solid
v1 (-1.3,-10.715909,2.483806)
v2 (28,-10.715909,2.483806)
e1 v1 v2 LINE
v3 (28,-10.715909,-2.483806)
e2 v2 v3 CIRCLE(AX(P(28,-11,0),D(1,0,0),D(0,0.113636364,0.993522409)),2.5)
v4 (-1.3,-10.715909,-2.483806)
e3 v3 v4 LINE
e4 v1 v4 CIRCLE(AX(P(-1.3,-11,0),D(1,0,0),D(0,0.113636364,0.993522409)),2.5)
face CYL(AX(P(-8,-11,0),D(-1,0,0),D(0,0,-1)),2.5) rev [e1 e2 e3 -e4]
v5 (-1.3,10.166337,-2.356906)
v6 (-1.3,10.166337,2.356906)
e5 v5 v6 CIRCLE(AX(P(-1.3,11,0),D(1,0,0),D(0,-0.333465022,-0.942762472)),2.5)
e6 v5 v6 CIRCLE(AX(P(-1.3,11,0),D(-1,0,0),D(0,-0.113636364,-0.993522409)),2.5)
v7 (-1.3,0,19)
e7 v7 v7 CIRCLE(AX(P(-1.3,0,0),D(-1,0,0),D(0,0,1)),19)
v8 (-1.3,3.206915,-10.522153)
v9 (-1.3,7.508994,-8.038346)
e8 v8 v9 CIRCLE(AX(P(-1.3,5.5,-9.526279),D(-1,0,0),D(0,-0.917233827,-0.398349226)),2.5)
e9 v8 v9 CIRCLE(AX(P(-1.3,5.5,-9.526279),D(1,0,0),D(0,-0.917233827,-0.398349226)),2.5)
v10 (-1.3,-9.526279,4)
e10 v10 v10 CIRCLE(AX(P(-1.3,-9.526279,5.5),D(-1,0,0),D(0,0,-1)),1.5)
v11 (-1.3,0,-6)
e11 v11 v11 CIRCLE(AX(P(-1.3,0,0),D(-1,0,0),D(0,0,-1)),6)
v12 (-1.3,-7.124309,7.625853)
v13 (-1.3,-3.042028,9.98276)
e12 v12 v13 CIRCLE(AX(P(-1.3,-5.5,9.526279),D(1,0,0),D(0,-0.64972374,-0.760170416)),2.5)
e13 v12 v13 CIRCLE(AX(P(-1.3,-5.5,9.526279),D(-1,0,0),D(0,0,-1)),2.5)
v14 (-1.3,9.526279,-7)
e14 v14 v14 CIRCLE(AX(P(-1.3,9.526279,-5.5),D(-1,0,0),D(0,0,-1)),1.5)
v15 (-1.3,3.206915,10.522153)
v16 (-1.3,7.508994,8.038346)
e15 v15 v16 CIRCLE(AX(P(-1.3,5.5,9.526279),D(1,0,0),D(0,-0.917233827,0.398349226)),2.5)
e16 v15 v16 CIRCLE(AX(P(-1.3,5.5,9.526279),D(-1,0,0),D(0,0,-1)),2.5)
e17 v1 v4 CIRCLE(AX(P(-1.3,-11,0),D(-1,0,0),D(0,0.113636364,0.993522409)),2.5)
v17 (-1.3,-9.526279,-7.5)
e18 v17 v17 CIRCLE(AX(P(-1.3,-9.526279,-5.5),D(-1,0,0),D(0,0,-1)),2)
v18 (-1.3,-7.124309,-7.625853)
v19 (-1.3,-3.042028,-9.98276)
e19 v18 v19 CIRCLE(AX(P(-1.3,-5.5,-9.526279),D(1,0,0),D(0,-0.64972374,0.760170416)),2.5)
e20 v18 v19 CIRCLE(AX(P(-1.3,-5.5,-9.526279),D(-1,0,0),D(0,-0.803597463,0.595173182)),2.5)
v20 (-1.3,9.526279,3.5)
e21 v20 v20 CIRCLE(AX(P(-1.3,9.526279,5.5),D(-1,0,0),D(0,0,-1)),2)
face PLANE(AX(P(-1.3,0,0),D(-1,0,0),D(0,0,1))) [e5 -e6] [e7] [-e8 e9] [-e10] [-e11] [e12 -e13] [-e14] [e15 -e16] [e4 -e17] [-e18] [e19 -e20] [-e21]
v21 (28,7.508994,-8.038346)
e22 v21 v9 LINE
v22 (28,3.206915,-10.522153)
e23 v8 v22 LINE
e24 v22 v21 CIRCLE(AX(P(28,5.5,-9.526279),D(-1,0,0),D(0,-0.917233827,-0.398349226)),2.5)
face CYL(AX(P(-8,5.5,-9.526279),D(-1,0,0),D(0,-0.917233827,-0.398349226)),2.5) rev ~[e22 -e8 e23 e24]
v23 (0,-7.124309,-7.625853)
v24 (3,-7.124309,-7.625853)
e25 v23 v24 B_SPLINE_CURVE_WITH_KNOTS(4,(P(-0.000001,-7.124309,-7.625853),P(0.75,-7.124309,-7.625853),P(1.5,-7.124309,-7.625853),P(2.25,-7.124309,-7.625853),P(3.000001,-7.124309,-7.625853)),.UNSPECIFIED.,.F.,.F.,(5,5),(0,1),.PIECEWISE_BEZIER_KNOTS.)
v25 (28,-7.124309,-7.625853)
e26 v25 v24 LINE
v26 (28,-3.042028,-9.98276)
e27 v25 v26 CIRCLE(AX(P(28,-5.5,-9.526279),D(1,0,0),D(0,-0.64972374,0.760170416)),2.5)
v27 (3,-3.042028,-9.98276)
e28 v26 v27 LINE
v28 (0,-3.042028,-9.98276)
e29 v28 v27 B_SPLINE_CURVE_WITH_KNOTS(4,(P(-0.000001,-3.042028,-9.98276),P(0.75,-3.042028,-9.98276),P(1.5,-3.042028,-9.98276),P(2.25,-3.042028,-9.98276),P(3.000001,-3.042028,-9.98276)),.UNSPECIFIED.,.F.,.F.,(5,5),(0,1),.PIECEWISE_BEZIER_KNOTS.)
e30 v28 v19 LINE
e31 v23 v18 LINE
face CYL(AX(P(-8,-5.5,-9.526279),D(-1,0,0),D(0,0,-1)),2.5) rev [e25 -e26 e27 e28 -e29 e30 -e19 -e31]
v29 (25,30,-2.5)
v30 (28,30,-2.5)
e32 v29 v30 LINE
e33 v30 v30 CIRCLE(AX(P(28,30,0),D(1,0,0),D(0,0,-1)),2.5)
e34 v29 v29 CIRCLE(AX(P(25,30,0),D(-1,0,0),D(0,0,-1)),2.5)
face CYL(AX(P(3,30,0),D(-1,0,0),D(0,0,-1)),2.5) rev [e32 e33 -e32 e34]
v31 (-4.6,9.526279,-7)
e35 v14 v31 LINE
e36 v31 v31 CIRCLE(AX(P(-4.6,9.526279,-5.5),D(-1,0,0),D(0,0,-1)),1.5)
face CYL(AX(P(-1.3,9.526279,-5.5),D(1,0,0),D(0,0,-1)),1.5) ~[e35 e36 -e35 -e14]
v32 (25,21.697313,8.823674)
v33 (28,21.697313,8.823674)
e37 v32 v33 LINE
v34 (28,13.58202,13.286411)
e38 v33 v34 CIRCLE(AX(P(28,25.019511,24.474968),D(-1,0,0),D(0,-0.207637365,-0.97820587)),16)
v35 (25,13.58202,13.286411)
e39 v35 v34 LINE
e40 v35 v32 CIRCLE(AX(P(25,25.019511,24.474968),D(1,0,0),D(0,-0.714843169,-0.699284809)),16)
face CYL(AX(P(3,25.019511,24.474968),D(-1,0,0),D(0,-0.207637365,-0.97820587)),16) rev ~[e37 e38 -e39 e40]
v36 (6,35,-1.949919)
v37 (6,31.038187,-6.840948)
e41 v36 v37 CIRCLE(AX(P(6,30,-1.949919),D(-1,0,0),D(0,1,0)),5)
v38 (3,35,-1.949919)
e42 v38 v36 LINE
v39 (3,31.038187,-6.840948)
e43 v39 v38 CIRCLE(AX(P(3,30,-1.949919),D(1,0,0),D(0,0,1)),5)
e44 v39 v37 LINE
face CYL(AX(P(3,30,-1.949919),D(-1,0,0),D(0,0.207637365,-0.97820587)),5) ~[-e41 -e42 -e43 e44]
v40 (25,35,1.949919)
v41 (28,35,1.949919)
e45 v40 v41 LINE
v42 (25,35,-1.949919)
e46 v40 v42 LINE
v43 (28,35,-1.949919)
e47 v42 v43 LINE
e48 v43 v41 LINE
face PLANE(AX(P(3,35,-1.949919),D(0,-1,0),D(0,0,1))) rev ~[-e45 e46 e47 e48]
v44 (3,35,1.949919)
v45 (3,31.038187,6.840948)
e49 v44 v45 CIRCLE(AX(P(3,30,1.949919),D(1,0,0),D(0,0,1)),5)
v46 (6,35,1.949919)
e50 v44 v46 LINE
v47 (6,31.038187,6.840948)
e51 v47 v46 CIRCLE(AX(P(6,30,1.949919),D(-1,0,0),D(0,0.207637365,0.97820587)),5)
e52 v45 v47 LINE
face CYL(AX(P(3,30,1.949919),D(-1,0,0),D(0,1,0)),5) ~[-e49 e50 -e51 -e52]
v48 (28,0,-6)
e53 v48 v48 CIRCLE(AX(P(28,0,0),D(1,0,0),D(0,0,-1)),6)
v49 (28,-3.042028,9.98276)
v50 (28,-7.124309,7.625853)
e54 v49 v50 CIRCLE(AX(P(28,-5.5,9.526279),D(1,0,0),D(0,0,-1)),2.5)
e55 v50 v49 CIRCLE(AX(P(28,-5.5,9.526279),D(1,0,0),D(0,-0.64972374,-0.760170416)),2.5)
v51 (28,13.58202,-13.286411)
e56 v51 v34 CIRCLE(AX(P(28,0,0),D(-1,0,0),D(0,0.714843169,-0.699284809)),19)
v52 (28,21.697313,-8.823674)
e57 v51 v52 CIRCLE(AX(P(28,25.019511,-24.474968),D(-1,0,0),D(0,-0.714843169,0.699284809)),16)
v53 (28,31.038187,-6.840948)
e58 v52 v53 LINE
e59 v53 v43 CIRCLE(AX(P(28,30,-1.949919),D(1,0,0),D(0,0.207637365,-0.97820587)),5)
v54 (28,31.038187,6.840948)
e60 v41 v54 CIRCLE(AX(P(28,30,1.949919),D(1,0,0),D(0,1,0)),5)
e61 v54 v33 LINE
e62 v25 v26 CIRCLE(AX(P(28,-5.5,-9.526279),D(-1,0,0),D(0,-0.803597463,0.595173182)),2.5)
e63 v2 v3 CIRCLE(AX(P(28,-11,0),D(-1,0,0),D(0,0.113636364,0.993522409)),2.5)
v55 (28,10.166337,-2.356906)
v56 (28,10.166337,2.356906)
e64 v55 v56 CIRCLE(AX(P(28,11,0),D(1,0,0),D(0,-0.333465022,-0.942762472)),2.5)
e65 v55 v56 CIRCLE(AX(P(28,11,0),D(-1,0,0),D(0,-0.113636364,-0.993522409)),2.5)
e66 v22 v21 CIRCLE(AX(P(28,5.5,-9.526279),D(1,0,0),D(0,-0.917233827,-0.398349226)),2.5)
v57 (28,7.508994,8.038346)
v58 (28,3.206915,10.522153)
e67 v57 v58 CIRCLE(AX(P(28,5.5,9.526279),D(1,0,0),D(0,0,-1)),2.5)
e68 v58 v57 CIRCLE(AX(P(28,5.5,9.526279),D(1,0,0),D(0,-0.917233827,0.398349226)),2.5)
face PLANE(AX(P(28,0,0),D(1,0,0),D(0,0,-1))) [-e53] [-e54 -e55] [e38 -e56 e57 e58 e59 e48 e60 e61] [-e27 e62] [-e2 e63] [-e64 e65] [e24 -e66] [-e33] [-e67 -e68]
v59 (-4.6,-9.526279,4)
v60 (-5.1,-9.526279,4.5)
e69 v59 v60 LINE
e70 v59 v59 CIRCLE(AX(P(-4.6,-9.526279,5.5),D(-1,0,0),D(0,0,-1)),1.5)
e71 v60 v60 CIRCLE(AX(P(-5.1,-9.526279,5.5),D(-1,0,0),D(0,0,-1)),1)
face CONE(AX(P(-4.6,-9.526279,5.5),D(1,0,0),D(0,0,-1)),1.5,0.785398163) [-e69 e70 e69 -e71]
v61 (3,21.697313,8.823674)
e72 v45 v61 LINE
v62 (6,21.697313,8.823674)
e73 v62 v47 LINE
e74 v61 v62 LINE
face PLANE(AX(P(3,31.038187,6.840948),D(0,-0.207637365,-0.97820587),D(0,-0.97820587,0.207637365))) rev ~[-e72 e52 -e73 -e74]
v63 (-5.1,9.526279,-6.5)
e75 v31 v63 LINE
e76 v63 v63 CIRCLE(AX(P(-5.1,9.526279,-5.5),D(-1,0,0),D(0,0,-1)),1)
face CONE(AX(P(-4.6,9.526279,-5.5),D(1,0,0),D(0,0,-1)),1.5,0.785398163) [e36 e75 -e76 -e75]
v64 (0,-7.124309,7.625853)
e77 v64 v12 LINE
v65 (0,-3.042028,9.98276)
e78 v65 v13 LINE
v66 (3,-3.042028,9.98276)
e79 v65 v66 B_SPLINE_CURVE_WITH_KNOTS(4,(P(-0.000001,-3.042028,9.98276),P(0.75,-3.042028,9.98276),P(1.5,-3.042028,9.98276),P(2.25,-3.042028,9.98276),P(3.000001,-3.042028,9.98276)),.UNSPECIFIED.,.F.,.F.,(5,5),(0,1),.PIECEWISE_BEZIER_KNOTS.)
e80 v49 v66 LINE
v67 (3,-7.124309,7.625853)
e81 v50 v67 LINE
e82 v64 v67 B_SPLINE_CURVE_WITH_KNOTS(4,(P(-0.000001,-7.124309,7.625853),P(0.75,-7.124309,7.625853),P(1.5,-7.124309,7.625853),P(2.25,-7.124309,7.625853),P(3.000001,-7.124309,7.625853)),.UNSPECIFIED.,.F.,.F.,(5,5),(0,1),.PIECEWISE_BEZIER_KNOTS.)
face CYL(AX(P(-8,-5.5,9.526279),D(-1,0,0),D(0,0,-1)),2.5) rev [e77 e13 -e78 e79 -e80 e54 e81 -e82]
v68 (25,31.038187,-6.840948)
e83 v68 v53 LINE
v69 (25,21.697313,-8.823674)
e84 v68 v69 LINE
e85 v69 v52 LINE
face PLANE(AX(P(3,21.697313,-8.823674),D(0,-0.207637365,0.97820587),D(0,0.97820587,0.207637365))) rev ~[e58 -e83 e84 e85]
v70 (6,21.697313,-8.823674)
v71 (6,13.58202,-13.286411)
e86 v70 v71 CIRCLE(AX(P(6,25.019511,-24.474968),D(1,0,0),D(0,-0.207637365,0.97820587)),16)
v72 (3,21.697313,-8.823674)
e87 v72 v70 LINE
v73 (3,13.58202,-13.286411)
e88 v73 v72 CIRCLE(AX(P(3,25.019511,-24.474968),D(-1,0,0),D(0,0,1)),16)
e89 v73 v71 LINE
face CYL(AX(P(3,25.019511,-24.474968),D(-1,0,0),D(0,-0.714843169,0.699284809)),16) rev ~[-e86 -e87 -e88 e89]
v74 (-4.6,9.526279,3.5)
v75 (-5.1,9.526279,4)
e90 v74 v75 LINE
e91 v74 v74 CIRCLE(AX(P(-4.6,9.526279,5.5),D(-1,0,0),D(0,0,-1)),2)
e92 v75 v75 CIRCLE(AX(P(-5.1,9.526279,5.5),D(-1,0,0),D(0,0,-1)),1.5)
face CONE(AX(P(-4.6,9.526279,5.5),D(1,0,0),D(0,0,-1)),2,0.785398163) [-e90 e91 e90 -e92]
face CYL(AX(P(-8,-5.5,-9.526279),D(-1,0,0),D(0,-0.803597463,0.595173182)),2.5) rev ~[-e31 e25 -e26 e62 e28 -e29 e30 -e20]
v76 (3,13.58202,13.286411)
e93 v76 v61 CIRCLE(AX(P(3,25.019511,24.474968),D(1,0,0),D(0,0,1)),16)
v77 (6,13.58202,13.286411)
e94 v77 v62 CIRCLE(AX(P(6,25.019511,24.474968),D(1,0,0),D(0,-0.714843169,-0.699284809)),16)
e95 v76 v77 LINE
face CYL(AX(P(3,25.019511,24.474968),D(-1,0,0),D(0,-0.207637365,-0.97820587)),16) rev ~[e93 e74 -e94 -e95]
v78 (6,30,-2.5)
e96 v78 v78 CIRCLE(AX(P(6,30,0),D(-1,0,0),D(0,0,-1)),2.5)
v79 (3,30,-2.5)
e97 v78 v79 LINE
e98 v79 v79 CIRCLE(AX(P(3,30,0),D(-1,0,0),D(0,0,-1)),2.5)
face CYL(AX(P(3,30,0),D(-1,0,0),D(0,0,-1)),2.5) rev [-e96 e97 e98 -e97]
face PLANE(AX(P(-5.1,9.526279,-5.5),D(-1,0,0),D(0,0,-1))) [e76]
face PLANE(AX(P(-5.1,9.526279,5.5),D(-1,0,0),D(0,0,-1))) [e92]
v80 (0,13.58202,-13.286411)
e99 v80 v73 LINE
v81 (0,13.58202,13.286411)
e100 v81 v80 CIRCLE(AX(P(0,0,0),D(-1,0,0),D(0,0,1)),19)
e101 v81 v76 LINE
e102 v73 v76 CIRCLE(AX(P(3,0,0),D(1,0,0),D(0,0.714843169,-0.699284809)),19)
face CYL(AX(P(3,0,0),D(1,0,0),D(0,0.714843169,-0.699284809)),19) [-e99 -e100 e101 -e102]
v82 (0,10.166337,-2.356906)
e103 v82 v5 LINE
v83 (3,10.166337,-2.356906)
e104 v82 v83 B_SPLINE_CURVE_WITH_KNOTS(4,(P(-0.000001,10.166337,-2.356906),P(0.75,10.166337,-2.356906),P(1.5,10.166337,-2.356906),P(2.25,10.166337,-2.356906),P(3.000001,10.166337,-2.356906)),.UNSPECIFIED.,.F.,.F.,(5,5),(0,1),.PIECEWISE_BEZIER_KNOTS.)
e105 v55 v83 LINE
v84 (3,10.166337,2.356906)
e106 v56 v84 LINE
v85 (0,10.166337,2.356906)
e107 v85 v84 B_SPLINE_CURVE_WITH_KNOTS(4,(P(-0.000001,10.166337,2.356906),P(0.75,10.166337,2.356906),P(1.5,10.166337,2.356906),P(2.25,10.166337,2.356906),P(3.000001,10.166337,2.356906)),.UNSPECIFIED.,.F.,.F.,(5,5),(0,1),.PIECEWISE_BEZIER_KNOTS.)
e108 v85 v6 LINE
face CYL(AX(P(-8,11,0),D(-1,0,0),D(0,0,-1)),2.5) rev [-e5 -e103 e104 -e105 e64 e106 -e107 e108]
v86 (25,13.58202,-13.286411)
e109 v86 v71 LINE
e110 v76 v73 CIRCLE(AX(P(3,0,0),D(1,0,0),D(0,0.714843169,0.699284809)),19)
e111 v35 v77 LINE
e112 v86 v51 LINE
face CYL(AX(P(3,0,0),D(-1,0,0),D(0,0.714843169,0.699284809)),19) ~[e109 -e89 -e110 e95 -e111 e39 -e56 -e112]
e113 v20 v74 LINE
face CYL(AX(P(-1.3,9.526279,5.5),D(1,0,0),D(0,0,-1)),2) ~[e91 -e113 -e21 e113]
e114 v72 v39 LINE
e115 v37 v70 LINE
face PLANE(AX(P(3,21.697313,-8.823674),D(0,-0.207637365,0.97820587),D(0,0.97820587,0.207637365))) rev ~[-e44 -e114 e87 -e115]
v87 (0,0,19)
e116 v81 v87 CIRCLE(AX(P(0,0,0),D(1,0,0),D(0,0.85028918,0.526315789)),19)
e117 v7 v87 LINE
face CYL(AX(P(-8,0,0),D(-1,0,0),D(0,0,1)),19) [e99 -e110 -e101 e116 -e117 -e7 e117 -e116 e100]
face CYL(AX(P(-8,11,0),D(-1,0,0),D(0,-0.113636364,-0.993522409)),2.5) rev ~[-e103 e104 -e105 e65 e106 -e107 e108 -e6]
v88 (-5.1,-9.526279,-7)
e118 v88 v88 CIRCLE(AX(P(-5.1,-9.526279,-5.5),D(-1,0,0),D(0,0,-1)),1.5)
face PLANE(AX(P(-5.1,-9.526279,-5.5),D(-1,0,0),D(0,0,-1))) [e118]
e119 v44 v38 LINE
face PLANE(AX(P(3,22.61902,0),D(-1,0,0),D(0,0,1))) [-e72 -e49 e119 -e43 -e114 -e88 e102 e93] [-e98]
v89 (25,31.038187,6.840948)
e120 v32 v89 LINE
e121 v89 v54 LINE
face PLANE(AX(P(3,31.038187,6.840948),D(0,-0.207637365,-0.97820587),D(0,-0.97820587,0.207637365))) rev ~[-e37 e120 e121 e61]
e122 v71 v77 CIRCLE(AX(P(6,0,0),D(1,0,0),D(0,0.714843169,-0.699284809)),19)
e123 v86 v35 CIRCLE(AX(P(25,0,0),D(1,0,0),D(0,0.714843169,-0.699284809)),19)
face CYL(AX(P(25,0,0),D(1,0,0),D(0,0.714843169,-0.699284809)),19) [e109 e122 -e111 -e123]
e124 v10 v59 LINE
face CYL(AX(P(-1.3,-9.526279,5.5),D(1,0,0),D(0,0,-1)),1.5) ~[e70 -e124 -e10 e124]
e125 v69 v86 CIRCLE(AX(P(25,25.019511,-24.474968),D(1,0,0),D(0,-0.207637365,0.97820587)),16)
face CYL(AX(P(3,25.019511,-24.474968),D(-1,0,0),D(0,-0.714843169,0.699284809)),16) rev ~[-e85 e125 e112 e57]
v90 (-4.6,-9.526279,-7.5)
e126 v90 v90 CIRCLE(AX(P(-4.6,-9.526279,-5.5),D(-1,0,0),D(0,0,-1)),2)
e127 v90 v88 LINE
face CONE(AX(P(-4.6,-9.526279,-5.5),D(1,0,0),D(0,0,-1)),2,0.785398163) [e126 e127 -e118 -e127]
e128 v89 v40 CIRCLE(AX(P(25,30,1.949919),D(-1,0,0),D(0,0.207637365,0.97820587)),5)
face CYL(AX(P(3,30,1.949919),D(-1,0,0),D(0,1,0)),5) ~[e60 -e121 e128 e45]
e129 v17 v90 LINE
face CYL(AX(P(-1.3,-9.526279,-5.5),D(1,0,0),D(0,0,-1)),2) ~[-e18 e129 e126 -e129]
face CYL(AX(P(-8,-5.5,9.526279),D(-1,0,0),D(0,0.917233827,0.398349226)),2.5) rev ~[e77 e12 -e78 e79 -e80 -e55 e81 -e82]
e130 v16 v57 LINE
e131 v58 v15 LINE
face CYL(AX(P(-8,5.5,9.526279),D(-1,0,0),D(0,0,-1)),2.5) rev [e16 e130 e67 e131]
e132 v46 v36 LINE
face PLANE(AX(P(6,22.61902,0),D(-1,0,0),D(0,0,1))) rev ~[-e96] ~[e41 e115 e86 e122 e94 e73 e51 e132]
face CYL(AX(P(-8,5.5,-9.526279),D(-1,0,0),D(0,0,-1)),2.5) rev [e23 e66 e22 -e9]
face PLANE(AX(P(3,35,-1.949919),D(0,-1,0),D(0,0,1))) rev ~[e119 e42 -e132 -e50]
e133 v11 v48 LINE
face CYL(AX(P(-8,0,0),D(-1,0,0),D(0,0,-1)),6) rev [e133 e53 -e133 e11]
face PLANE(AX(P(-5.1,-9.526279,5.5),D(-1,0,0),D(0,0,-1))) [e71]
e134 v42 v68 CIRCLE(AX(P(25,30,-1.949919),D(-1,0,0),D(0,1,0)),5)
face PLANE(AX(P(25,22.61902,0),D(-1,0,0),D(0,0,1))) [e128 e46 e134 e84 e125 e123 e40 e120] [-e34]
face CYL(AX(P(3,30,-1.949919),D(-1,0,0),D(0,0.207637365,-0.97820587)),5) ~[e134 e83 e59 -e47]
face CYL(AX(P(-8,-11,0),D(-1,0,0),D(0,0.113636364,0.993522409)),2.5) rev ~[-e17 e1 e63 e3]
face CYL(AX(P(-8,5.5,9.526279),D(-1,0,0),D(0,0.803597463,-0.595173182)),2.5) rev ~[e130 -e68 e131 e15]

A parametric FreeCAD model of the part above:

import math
import FreeCAD as App
import Part
import Sketcher
Q = App.Units.Quantity


def edges_at(feature, points):
    """Names of the edges that pass closest to the given points."""
    edges = feature.Shape.Edges
    near = lambda p: min(range(len(edges)), key=lambda i: edges[i].distToShape(Part.Vertex(*p))[0])
    return sorted({f"Edge{near(p) + 1}" for p in points})

doc = App.newDocument("Part")
body = doc.addObject("PartDesign::Body", "Body")

sketch1 = body.newObject("Sketcher::SketchObject", "Sketch")
sketch1.AttachmentSupport = (doc.getObject("YZ_Plane"), [""])
sketch1.MapMode = "FlatFace"
sketch1.addGeometry([
    Part.Circle(App.Vector(0, 0, 0), App.Vector(0, 0, 1), 19),
    Part.Circle(App.Vector(-6.75, 11.691343, 0), App.Vector(0, 0, 1), 2),
    Part.Circle(App.Vector(-15, 0, 0), App.Vector(0, 0, 1), 2),
    Part.Circle(App.Vector(-6.75, -11.691343, 0), App.Vector(0, 0, 1), 2),
    Part.Circle(App.Vector(7.5, 12.990381, 0), App.Vector(0, 0, 1), 2),
    Part.Circle(App.Vector(0, 0, 0), App.Vector(0, 0, 1), 11),
    Part.Circle(App.Vector(13.5, 0, 0), App.Vector(0, 0, 1), 2),
    Part.Circle(App.Vector(7.5, -12.990381, 0), App.Vector(0, 0, 1), 2),
], False)
sketch1.addConstraint([
    Sketcher.Constraint("Coincident", 0, 3, -1, 1),
    Sketcher.Constraint("Coincident", 5, 3, -1, 1),
    Sketcher.Constraint("Equal", 1, 2),
    Sketcher.Constraint("Equal", 2, 3),
    Sketcher.Constraint("Equal", 3, 4),
    Sketcher.Constraint("Equal", 4, 6),
    Sketcher.Constraint("Equal", 6, 7),
    Sketcher.Constraint("Symmetric", 1, 3, 3, 3, -1),
    Sketcher.Constraint("Symmetric", 4, 3, 7, 3, -1),
    Sketcher.Constraint("PointOnObject", 2, 3, -1),
    Sketcher.Constraint("PointOnObject", 6, 3, -1),
    Sketcher.Constraint("Diameter", 0, Q("38 mm")),
    Sketcher.Constraint("Diameter", 1, Q("4 mm")),
    Sketcher.Constraint("Diameter", 5, Q("22 mm")),
    Sketcher.Constraint("DistanceX", 2, 3, -1, 1, Q("15 mm")),
    Sketcher.Constraint("DistanceX", 4, 3, 6, 3, Q("6 mm")),
    Sketcher.Constraint("DistanceX", -1, 1, 4, 3, Q("7.5 mm")),
    Sketcher.Constraint("DistanceX", 1, 3, -1, 1, Q("6.75 mm")),
    Sketcher.Constraint("DistanceY", -1, 1, 4, 3, Q("12.990381 mm")),
    Sketcher.Constraint("DistanceY", 1, 3, 4, 3, Q("1.299038 mm")),
])
pad1 = body.newObject("PartDesign::Pad", "Pad")
pad1.Profile = sketch1
pad1.Length = 3

sketch2 = body.newObject("Sketcher::SketchObject", "Sketch001")
sketch2.AttachmentSupport = (doc.getObject("YZ_Plane"), [""])
sketch2.MapMode = "FlatFace"
sketch2.addGeometry([
    Part.ArcOfCircle(Part.Circle(App.Vector(13.5, 0, 0), App.Vector(0, 0, 1), 4), math.radians(135.665969), math.radians(224.334031)),
    Part.ArcOfCircle(Part.Circle(App.Vector(0, 0, 0), App.Vector(0, 0, 1), 11), math.radians(-14.721668), math.radians(14.721668)),
    Part.ArcOfCircle(Part.Circle(App.Vector(-6.75, -11.691343, 0), App.Vector(0, 0, 1), 4), math.radians(15.665969), math.radians(104.334031)),
    Part.ArcOfCircle(Part.Circle(App.Vector(0, 0, 0), App.Vector(0, 0, 1), 11), math.radians(-134.721668), math.radians(-105.278332)),
    Part.ArcOfCircle(Part.Circle(App.Vector(-6.75, 11.691343, 0), App.Vector(0, 0, 1), 4), math.radians(-104.334031), math.radians(-15.665969)),
    Part.ArcOfCircle(Part.Circle(App.Vector(0, 0, 0), App.Vector(0, 0, 1), 11), math.radians(105.278332), math.radians(134.721668)),
], False)
sketch2.addConstraint([
    Sketcher.Constraint("Coincident", 0, 1, 1, 2),
    Sketcher.Constraint("Coincident", 1, 1, 0, 2),
    Sketcher.Constraint("Coincident", 2, 1, 3, 2),
    Sketcher.Constraint("Coincident", 3, 1, 2, 2),
    Sketcher.Constraint("Coincident", 4, 1, 5, 2),
    Sketcher.Constraint("Coincident", 5, 1, 4, 2),
    Sketcher.Constraint("Coincident", 1, 3, -1, 1),
    Sketcher.Constraint("Coincident", 3, 3, -1, 1),
    Sketcher.Constraint("Coincident", 5, 3, -1, 1),
    Sketcher.Constraint("Equal", 0, 2),
    Sketcher.Constraint("Equal", 1, 3),
    Sketcher.Constraint("Equal", 2, 4),
    Sketcher.Constraint("Equal", 3, 5),
    Sketcher.Constraint("Symmetric", 2, 3, 4, 3, -1),
    Sketcher.Constraint("PointOnObject", 0, 3, -1),
    Sketcher.Constraint("Radius", 0, Q("4 mm")),
    Sketcher.Constraint("Radius", 1, Q("11 mm")),
    Sketcher.Constraint("DistanceX", -1, 1, 0, 3, Q("13.5 mm")),
    Sketcher.Constraint("DistanceX", 2, 3, -1, 1, Q("6.75 mm")),
    Sketcher.Constraint("DistanceX", 3, 1, -1, 1, Q("7.740298 mm")),
])
pad2 = body.newObject("PartDesign::Pad", "Pad001")
pad2.Profile = sketch2
pad2.Length = 3
doc.recompute()

fillet = body.newObject("PartDesign::Fillet", "Fillet")
fillet.Base = (pad2, edges_at(pad2, [
    (1.5, 10.639, 2.795),
    (1.5, 10.639, -2.795),
    (1.5, -2.899, -10.611),
    (1.5, -7.74, -7.816),
    (1.5, -7.74, 7.816),
    (1.5, -2.899, 10.611),
]))
fillet.Radius = 3

sketch3 = body.newObject("Sketcher::SketchObject", "Sketch002")
sketch3.AttachmentSupport = (doc.getObject("YZ_Plane"), [""])
sketch3.MapMode = "FlatFace"
sketch3.addGeometry([
    Part.LineSegment(App.Vector(35, 6, 0), App.Vector(16.155494, 10, 0)),
    Part.ArcOfCircle(Part.Circle(App.Vector(0, 0, 0), App.Vector(0, 0, 1), 19), math.radians(-31.756864), math.radians(31.756864)),
    Part.LineSegment(App.Vector(16.155494, -10, 0), App.Vector(35, -6, 0)),
    Part.LineSegment(App.Vector(35, -6, 0), App.Vector(35, 6, 0)),
    Part.Circle(App.Vector(30, 0, 0), App.Vector(0, 0, 1), 2.5),
], False)
sketch3.addConstraint([
    Sketcher.Constraint("Coincident", 0, 2, 1, 2),
    Sketcher.Constraint("Coincident", 1, 1, 2, 1),
    Sketcher.Constraint("Coincident", 2, 2, 3, 1),
    Sketcher.Constraint("Coincident", 3, 2, 0, 1),
    Sketcher.Constraint("Vertical", 3),
    Sketcher.Constraint("Coincident", 1, 3, -1, 1),
    Sketcher.Constraint("PointOnObject", 4, 3, -1),
    Sketcher.Constraint("Vertical", 0, 2, 1, 1),
    Sketcher.Constraint("Equal", 0, 2),
    Sketcher.Constraint("Diameter", 4, Q("5 mm")),
    Sketcher.Constraint("Radius", 1, Q("19 mm")),
    Sketcher.Constraint("DistanceY", 3, 1, 3, 2, Q("12 mm")),
    Sketcher.Constraint("DistanceX", -1, 1, 4, 3, Q("30 mm")),
    Sketcher.Constraint("DistanceY", -1, 1, 0, 2, Q("10 mm")),
    Sketcher.Constraint("DistanceX", -1, 1, 2, 2, Q("35 mm")),
])
pad3 = body.newObject("PartDesign::Pad", "Pad002")
pad3.Profile = sketch3
pad3.Length = 3
doc.recompute()

fillet2 = body.newObject("PartDesign::Fillet", "Fillet001")
fillet2.Base = (pad3, edges_at(pad3, [(1.5, 16.155, 10), (1.5, 16.155, -10)]))
fillet2.Radius = 16
doc.recompute()

fillet3 = body.newObject("PartDesign::Fillet", "Fillet002")
fillet3.Base = (fillet2, edges_at(fillet2, [(1.5, 35, -6), (1.5, 35, 6)]))
fillet3.Radius = 5

sketch4 = body.newObject("Sketcher::SketchObject", "Sketch003")
sketch4.AttachmentSupport = (doc.getObject("YZ_Plane"), [""])
sketch4.MapMode = "FlatFace"
sketch4.AttachmentOffset = App.Placement(App.Vector(0, 0, -8), App.Rotation())
sketch4.addGeometry([
    Part.Circle(App.Vector(0, 0, 0), App.Vector(0, 0, 1), 19),
    Part.Circle(App.Vector(-6.75, -11.691343, 0), App.Vector(0, 0, 1), 2),
    Part.Circle(App.Vector(-15, 0, 0), App.Vector(0, 0, 1), 2),
    Part.Circle(App.Vector(-6.75, 11.691343, 0), App.Vector(0, 0, 1), 2),
    Part.Circle(App.Vector(7.5, -12.990381, 0), App.Vector(0, 0, 1), 2),
    Part.ArcOfCircle(Part.Circle(App.Vector(-0.829368, 7.956893, 0), App.Vector(0, 0, 1), 3), math.radians(95.950602), math.radians(147.758244)),
    Part.ArcOfCircle(Part.Circle(App.Vector(-6.75, 11.691343, 0), App.Vector(0, 0, 1), 4), math.radians(-87.758244), math.radians(-32.241756)),
    Part.ArcOfCircle(Part.Circle(App.Vector(-6.476188, 4.6967, 0), App.Vector(0, 0, 1), 3), math.radians(92.241756), math.radians(144.049398)),
    Part.ArcOfCircle(Part.Circle(App.Vector(0, 0, 0), App.Vector(0, 0, 1), 11), math.radians(144.049398), math.radians(215.950602)),
    Part.ArcOfCircle(Part.Circle(App.Vector(-6.476188, -4.6967, 0), App.Vector(0, 0, 1), 3), math.radians(-144.049398), math.radians(-92.241756)),
    Part.ArcOfCircle(Part.Circle(App.Vector(-6.75, -11.691343, 0), App.Vector(0, 0, 1), 4), math.radians(32.241756), math.radians(87.758244)),
    Part.ArcOfCircle(Part.Circle(App.Vector(-0.829368, -7.956893, 0), App.Vector(0, 0, 1), 3), math.radians(-147.758244), math.radians(-95.950602)),
    Part.ArcOfCircle(Part.Circle(App.Vector(0, 0, 0), App.Vector(0, 0, 1), 11), math.radians(-95.950602), math.radians(-24.049398)),
    Part.ArcOfCircle(Part.Circle(App.Vector(7.305556, -3.260193, 0), App.Vector(0, 0, 1), 3), math.radians(-24.049398), math.radians(27.758244)),
    Part.ArcOfCircle(Part.Circle(App.Vector(13.5, 0, 0), App.Vector(0, 0, 1), 4), math.radians(152.241756), math.radians(207.758244)),
    Part.ArcOfCircle(Part.Circle(App.Vector(7.305556, 3.260193, 0), App.Vector(0, 0, 1), 3), math.radians(-27.758244), math.radians(24.049398)),
    Part.ArcOfCircle(Part.Circle(App.Vector(0, 0, 0), App.Vector(0, 0, 1), 11), math.radians(24.049398), math.radians(95.950602)),
    Part.Circle(App.Vector(13.5, 0, 0), App.Vector(0, 0, 1), 2),
    Part.Circle(App.Vector(7.5, 12.990381, 0), App.Vector(0, 0, 1), 2),
], False)
sketch4.addConstraint([
    Sketcher.Constraint("Tangent", 5, 2, 6, 2),
    Sketcher.Constraint("Tangent", 6, 1, 7, 1),
    Sketcher.Constraint("Tangent", 7, 2, 8, 1),
    Sketcher.Constraint("Tangent", 8, 2, 9, 1),
    Sketcher.Constraint("Tangent", 9, 2, 10, 2),
    Sketcher.Constraint("Tangent", 10, 1, 11, 1),
    Sketcher.Constraint("Tangent", 11, 2, 12, 1),
    Sketcher.Constraint("Tangent", 12, 2, 13, 1),
    Sketcher.Constraint("Tangent", 13, 2, 14, 2),
    Sketcher.Constraint("Tangent", 14, 1, 15, 1),
    Sketcher.Constraint("Tangent", 15, 2, 16, 1),
    Sketcher.Constraint("Tangent", 16, 2, 5, 1),
    Sketcher.Constraint("Coincident", 0, 3, -1, 1),
    Sketcher.Constraint("Coincident", 8, 3, -1, 1),
    Sketcher.Constraint("Coincident", 12, 3, -1, 1),
    Sketcher.Constraint("Coincident", 16, 3, -1, 1),
    Sketcher.Constraint("Coincident", 6, 3, 3, 3),
    Sketcher.Constraint("Coincident", 10, 3, 1, 3),
    Sketcher.Constraint("Coincident", 17, 3, 14, 3),
    Sketcher.Constraint("Equal", 1, 2),
    Sketcher.Constraint("Equal", 2, 3),
    Sketcher.Constraint("Equal", 3, 4),
    Sketcher.Constraint("Equal", 5, 7),
    Sketcher.Constraint("Equal", 7, 9),
    Sketcher.Constraint("Equal", 6, 10),
    Sketcher.Constraint("Equal", 9, 11),
    Sketcher.Constraint("Equal", 8, 12),
    Sketcher.Constraint("Equal", 11, 13),
    Sketcher.Constraint("Equal", 10, 14),
    Sketcher.Constraint("Equal", 13, 15),
    Sketcher.Constraint("Equal", 12, 16),
    Sketcher.Constraint("Equal", 4, 17),
    Sketcher.Constraint("Equal", 17, 18),
    Sketcher.Constraint("Symmetric", 1, 3, 3, 3, -1),
    Sketcher.Constraint("Symmetric", 4, 3, 18, 3, -1),
    Sketcher.Constraint("PointOnObject", 2, 3, -1),
    Sketcher.Constraint("PointOnObject", 14, 3, -1),
    Sketcher.Constraint("Diameter", 0, Q("38 mm")),
    Sketcher.Constraint("Diameter", 1, Q("4 mm")),
    Sketcher.Constraint("Radius", 5, Q("3 mm")),
    Sketcher.Constraint("Radius", 6, Q("4 mm")),
    Sketcher.Constraint("Radius", 8, Q("11 mm")),
    Sketcher.Constraint("DistanceX", 2, 3, -1, 1, Q("15 mm")),
    Sketcher.Constraint("DistanceX", 4, 3, 14, 3, Q("6 mm")),
    Sketcher.Constraint("DistanceX", -1, 1, 4, 3, Q("7.5 mm")),
    Sketcher.Constraint("DistanceX", 1, 3, -1, 1, Q("6.75 mm")),
    Sketcher.Constraint("DistanceY", -1, 1, 7, 3, Q("4.6967 mm")),
    Sketcher.Constraint("DistanceY", 4, 3, -1, 1, Q("12.990381 mm")),
])
pad4 = body.newObject("PartDesign::Pad", "Pad003")
pad4.Profile = sketch4
pad4.Length = 8

sketch5 = body.newObject("Sketcher::SketchObject", "Sketch004")
sketch5.AttachmentSupport = (doc.getObject("YZ_Plane"), [""])
sketch5.MapMode = "FlatFace"
sketch5.AttachmentOffset = App.Placement(App.Vector(0, 0, 3), App.Rotation())
sketch5.addGeometry([
    Part.LineSegment(App.Vector(21.697313, -8.823674, 0), App.Vector(31.038187, -6.840948, 0)),
    Part.ArcOfCircle(Part.Circle(App.Vector(30, -1.949919, 0), App.Vector(0, 0, 1), 5), math.radians(-78.016068), math.radians(0)),
    Part.LineSegment(App.Vector(35, -1.949919, 0), App.Vector(35, 1.949919, 0)),
    Part.ArcOfCircle(Part.Circle(App.Vector(30, 1.949919, 0), App.Vector(0, 0, 1), 5), math.radians(0), math.radians(78.016068)),
    Part.LineSegment(App.Vector(31.038187, 6.840948, 0), App.Vector(21.697313, 8.823674, 0)),
    Part.ArcOfCircle(Part.Circle(App.Vector(25.019511, 24.474968, 0), App.Vector(0, 0, 1), 16), math.radians(-135.630348), math.radians(-101.983932)),
    Part.ArcOfCircle(Part.Circle(App.Vector(0, 0, 0), App.Vector(0, 0, 1), 19), math.radians(44.369652), math.radians(315.630348)),
    Part.ArcOfCircle(Part.Circle(App.Vector(25.019511, -24.474968, 0), App.Vector(0, 0, 1), 16), math.radians(101.983932), math.radians(135.630348)),
    Part.Circle(App.Vector(-6.75, 11.691343, 0), App.Vector(0, 0, 1), 2),
    Part.Circle(App.Vector(7.5, 12.990381, 0), App.Vector(0, 0, 1), 2),
    Part.Circle(App.Vector(-15, 0, 0), App.Vector(0, 0, 1), 2),
    Part.Circle(App.Vector(-6.75, -11.691343, 0), App.Vector(0, 0, 1), 2),
    Part.ArcOfCircle(Part.Circle(App.Vector(-6.476188, -4.6967, 0), App.Vector(0, 0, 1), 3), math.radians(-144.049398), math.radians(-92.241756)),
    Part.ArcOfCircle(Part.Circle(App.Vector(0, 0, 0), App.Vector(0, 0, 1), 11), math.radians(144.049398), math.radians(215.950602)),
    Part.ArcOfCircle(Part.Circle(App.Vector(-6.476188, 4.6967, 0), App.Vector(0, 0, 1), 3), math.radians(92.241756), math.radians(144.049398)),
    Part.ArcOfCircle(Part.Circle(App.Vector(-6.75, 11.691343, 0), App.Vector(0, 0, 1), 4), math.radians(-87.758244), math.radians(-32.241756)),
    Part.ArcOfCircle(Part.Circle(App.Vector(-0.829368, 7.956893, 0), App.Vector(0, 0, 1), 3), math.radians(95.950602), math.radians(147.758244)),
    Part.ArcOfCircle(Part.Circle(App.Vector(0, 0, 0), App.Vector(0, 0, 1), 11), math.radians(24.049398), math.radians(95.950602)),
    Part.ArcOfCircle(Part.Circle(App.Vector(7.305556, 3.260193, 0), App.Vector(0, 0, 1), 3), math.radians(-27.758244), math.radians(24.049398)),
    Part.ArcOfCircle(Part.Circle(App.Vector(13.5, 0, 0), App.Vector(0, 0, 1), 4), math.radians(152.241756), math.radians(207.758244)),
    Part.ArcOfCircle(Part.Circle(App.Vector(7.305556, -3.260193, 0), App.Vector(0, 0, 1), 3), math.radians(-24.049398), math.radians(27.758244)),
    Part.ArcOfCircle(Part.Circle(App.Vector(0, 0, 0), App.Vector(0, 0, 1), 11), math.radians(-95.950602), math.radians(-24.049398)),
    Part.ArcOfCircle(Part.Circle(App.Vector(-0.829368, -7.956893, 0), App.Vector(0, 0, 1), 3), math.radians(-147.758244), math.radians(-95.950602)),
    Part.ArcOfCircle(Part.Circle(App.Vector(-6.75, -11.691343, 0), App.Vector(0, 0, 1), 4), math.radians(32.241756), math.radians(87.758244)),
    Part.Circle(App.Vector(7.5, -12.990381, 0), App.Vector(0, 0, 1), 2),
    Part.Circle(App.Vector(13.5, 0, 0), App.Vector(0, 0, 1), 2),
    Part.Circle(App.Vector(30, 0, 0), App.Vector(0, 0, 1), 2.5),
], False)
sketch5.addConstraint([
    Sketcher.Constraint("Tangent", 0, 2, 1, 1),
    Sketcher.Constraint("Tangent", 1, 2, 2, 1),
    Sketcher.Constraint("Tangent", 2, 2, 3, 1),
    Sketcher.Constraint("Tangent", 3, 2, 4, 1),
    Sketcher.Constraint("Tangent", 4, 2, 5, 2),
    Sketcher.Constraint("Tangent", 5, 1, 6, 1),
    Sketcher.Constraint("Tangent", 6, 2, 7, 2),
    Sketcher.Constraint("Tangent", 7, 1, 0, 1),
    Sketcher.Constraint("Tangent", 12, 1, 13, 2),
    Sketcher.Constraint("Tangent", 13, 1, 14, 2),
    Sketcher.Constraint("Tangent", 14, 1, 15, 1),
    Sketcher.Constraint("Tangent", 15, 2, 16, 2),
    Sketcher.Constraint("Tangent", 16, 1, 17, 2),
    Sketcher.Constraint("Tangent", 17, 1, 18, 2),
    Sketcher.Constraint("Tangent", 18, 1, 19, 1),
    Sketcher.Constraint("Tangent", 19, 2, 20, 2),
    Sketcher.Constraint("Tangent", 20, 1, 21, 2),
    Sketcher.Constraint("Tangent", 21, 1, 22, 2),
    Sketcher.Constraint("Tangent", 22, 1, 23, 1),
    Sketcher.Constraint("Tangent", 23, 2, 12, 2),
    Sketcher.Constraint("Vertical", 2),
    Sketcher.Constraint("Coincident", 6, 3, -1, 1),
    Sketcher.Constraint("Coincident", 13, 3, -1, 1),
    Sketcher.Constraint("Coincident", 17, 3, -1, 1),
    Sketcher.Constraint("Coincident", 21, 3, -1, 1),
    Sketcher.Constraint("Coincident", 15, 3, 8, 3),
    Sketcher.Constraint("Coincident", 23, 3, 11, 3),
    Sketcher.Constraint("Coincident", 25, 3, 19, 3),
    Sketcher.Constraint("Equal", 1, 3),
    Sketcher.Constraint("Equal", 5, 7),
    Sketcher.Constraint("Equal", 8, 9),
    Sketcher.Constraint("Equal", 9, 10),
    Sketcher.Constraint("Equal", 10, 11),
    Sketcher.Constraint("Equal", 12, 14),
    Sketcher.Constraint("Equal", 14, 16),
    Sketcher.Constraint("Equal", 13, 17),
    Sketcher.Constraint("Equal", 16, 18),
    Sketcher.Constraint("Equal", 15, 19),
    Sketcher.Constraint("Equal", 18, 20),
    Sketcher.Constraint("Equal", 17, 21),
    Sketcher.Constraint("Equal", 20, 22),
    Sketcher.Constraint("Equal", 19, 23),
    Sketcher.Constraint("Equal", 11, 24),
    Sketcher.Constraint("Equal", 24, 25),
    Sketcher.Constraint("Symmetric", 8, 3, 11, 3, -1),
    Sketcher.Constraint("Symmetric", 9, 3, 24, 3, -1),
    Sketcher.Constraint("Symmetric", 0, 2, 3, 2, -1),
    Sketcher.Constraint("PointOnObject", 10, 3, -1),
    Sketcher.Constraint("PointOnObject", 19, 3, -1),
    Sketcher.Constraint("PointOnObject", 26, 3, -1),
    Sketcher.Constraint("Vertical", 3, 3, 26, 3),
    Sketcher.Constraint("Diameter", 8, Q("4 mm")),
    Sketcher.Constraint("Diameter", 26, Q("5 mm")),
    Sketcher.Constraint("Radius", 1, Q("5 mm")),
    Sketcher.Constraint("Radius", 5, Q("16 mm")),
    Sketcher.Constraint("Radius", 6, Q("19 mm")),
    Sketcher.Constraint("Radius", 12, Q("3 mm")),
    Sketcher.Constraint("Radius", 13, Q("11 mm")),
    Sketcher.Constraint("Radius", 15, Q("4 mm")),
    Sketcher.Constraint("DistanceX", -1, 1, 1, 3, Q("30 mm")),
    Sketcher.Constraint("DistanceX", 10, 3, -1, 1, Q("15 mm")),
    Sketcher.Constraint("DistanceX", 9, 3, 19, 3, Q("6 mm")),
    Sketcher.Constraint("DistanceX", -1, 1, 9, 3, Q("7.5 mm")),
    Sketcher.Constraint("DistanceX", 8, 3, -1, 1, Q("6.75 mm")),
    Sketcher.Constraint("DistanceY", 12, 3, -1, 1, Q("4.6967 mm")),
    Sketcher.Constraint("DistanceY", 1, 3, 9, 3, Q("14.9403 mm")),
    Sketcher.Constraint("DistanceY", 2, 1, 2, 2, Q("3.899838 mm")),
    Sketcher.Constraint("DistanceX", -1, 1, 5, 3, Q("25.019511 mm")),
])
pad5 = body.newObject("PartDesign::Pad", "Pad004")
pad5.Profile = sketch5
pad5.Length = 25

sketch6 = body.newObject("Sketcher::SketchObject", "Sketch005")
sketch6.AttachmentSupport = (doc.getObject("YZ_Plane"), [""])
sketch6.MapMode = "FlatFace"
sketch6.AttachmentOffset = App.Placement(App.Vector(0, 0, 25), App.Rotation())
sketch6.addGeometry([
    Part.LineSegment(App.Vector(31.038187, -6.840948, 0), App.Vector(21.697313, -8.823674, 0)),
    Part.ArcOfCircle(Part.Circle(App.Vector(25.019511, -24.474968, 0), App.Vector(0, 0, 1), 16), math.radians(101.983932), math.radians(135.630348)),
    Part.ArcOfCircle(Part.Circle(App.Vector(0, 0, 0), App.Vector(0, 0, 1), 19), math.radians(-44.369652), math.radians(44.369652)),
    Part.ArcOfCircle(Part.Circle(App.Vector(25.019511, 24.474968, 0), App.Vector(0, 0, 1), 16), math.radians(-135.630348), math.radians(-101.983932)),
    Part.LineSegment(App.Vector(21.697313, 8.823674, 0), App.Vector(31.038187, 6.840948, 0)),
    Part.ArcOfCircle(Part.Circle(App.Vector(30, 1.949919, 0), App.Vector(0, 0, 1), 5), math.radians(0), math.radians(78.016068)),
    Part.LineSegment(App.Vector(35, 1.949919, 0), App.Vector(35, -1.949919, 0)),
    Part.ArcOfCircle(Part.Circle(App.Vector(30, -1.949919, 0), App.Vector(0, 0, 1), 5), math.radians(-78.016068), math.radians(0)),
], False)
sketch6.addConstraint([
    Sketcher.Constraint("Tangent", 0, 2, 1, 1),
    Sketcher.Constraint("Tangent", 1, 2, 2, 1),
    Sketcher.Constraint("Tangent", 2, 2, 3, 1),
    Sketcher.Constraint("Tangent", 3, 2, 4, 1),
    Sketcher.Constraint("Tangent", 4, 2, 5, 2),
    Sketcher.Constraint("Tangent", 5, 1, 6, 1),
    Sketcher.Constraint("Tangent", 6, 2, 7, 2),
    Sketcher.Constraint("Tangent", 7, 1, 0, 1),
    Sketcher.Constraint("Vertical", 6),
    Sketcher.Constraint("Coincident", 2, 3, -1, 1),
    Sketcher.Constraint("Equal", 1, 3),
    Sketcher.Constraint("Equal", 5, 7),
    Sketcher.Constraint("Symmetric", 0, 2, 3, 2, -1),
    Sketcher.Constraint("Radius", 1, Q("16 mm")),
    Sketcher.Constraint("Radius", 2, Q("19 mm")),
    Sketcher.Constraint("Radius", 5, Q("5 mm")),
    Sketcher.Constraint("DistanceX", -1, 1, 5, 3, Q("30 mm")),
    Sketcher.Constraint("DistanceY", 6, 2, 6, 1, Q("3.899838 mm")),
    Sketcher.Constraint("DistanceX", -1, 1, 1, 3, Q("25.019511 mm")),
])
pocket1 = body.newObject("PartDesign::Pocket", "Pocket")
pocket1.Profile = sketch6
pocket1.Length = 19

sketch7 = body.newObject("Sketcher::SketchObject", "Sketch006")
sketch7.AttachmentSupport = (doc.getObject("YZ_Plane"), [""])
sketch7.MapMode = "FlatFace"
sketch7.AttachmentOffset = App.Placement(App.Vector(0, 0, -8), App.Rotation())
sketch7.addGeometry([
    Part.Circle(App.Vector(0, 0, 0), App.Vector(0, 0, 1), 19),
    Part.Circle(App.Vector(0, 0, 0), App.Vector(0, 0, 1), 11),
], False)
sketch7.addConstraint([
    Sketcher.Constraint("Coincident", 0, 3, -1, 1),
    Sketcher.Constraint("Coincident", 1, 3, -1, 1),
    Sketcher.Constraint("Diameter", 0, Q("38 mm")),
    Sketcher.Constraint("Diameter", 1, Q("22 mm")),
])
pad6 = body.newObject("PartDesign::Pad", "Pad005")
pad6.Profile = sketch7
pad6.Length = 36

sketch8 = body.newObject("Sketcher::SketchObject", "Sketch007")
sketch8.AttachmentSupport = (doc.getObject("YZ_Plane"), [""])
sketch8.MapMode = "FlatFace"
sketch8.AttachmentOffset = App.Placement(App.Vector(0, 0, -8), App.Rotation())
sketch8.addGeometry([
    Part.ArcOfCircle(Part.Circle(App.Vector(0, 0, 0), App.Vector(0, 0, 1), 11), math.radians(73.049958), math.radians(106.950042)),
    Part.ArcOfCircle(Part.Circle(App.Vector(-5.5, 9.526279, 0), App.Vector(0, 0, 1), 2.5), math.radians(-143.475021), math.radians(23.475021)),
    Part.ArcOfCircle(Part.Circle(App.Vector(0, 0, 0), App.Vector(0, 0, 1), 11), math.radians(133.049958), math.radians(166.950042)),
    Part.ArcOfCircle(Part.Circle(App.Vector(-11, 0, 0), App.Vector(0, 0, 1), 2.5), math.radians(-83.475021), math.radians(83.475021)),
    Part.ArcOfCircle(Part.Circle(App.Vector(0, 0, 0), App.Vector(0, 0, 1), 11), math.radians(-166.950042), math.radians(-133.049958)),
    Part.ArcOfCircle(Part.Circle(App.Vector(-5.5, -9.526279, 0), App.Vector(0, 0, 1), 2.5), math.radians(-23.475021), math.radians(143.475021)),
    Part.ArcOfCircle(Part.Circle(App.Vector(0, 0, 0), App.Vector(0, 0, 1), 11), math.radians(-106.950042), math.radians(-73.049958)),
    Part.ArcOfCircle(Part.Circle(App.Vector(5.5, -9.526279, 0), App.Vector(0, 0, 1), 2.5), math.radians(36.524979), math.radians(203.475021)),
    Part.ArcOfCircle(Part.Circle(App.Vector(0, 0, 0), App.Vector(0, 0, 1), 11), math.radians(-46.950042), math.radians(-13.049958)),
    Part.ArcOfCircle(Part.Circle(App.Vector(11, 0, 0), App.Vector(0, 0, 1), 2.5), math.radians(96.524979), math.radians(263.475021)),
    Part.ArcOfCircle(Part.Circle(App.Vector(0, 0, 0), App.Vector(0, 0, 1), 11), math.radians(13.049958), math.radians(46.950042)),
    Part.ArcOfCircle(Part.Circle(App.Vector(5.5, 9.526279, 0), App.Vector(0, 0, 1), 2.5), math.radians(156.524979), math.radians(323.475021)),
    Part.Circle(App.Vector(0, 0, 0), App.Vector(0, 0, 1), 6),
], False)
sketch8.addConstraint([
    Sketcher.Constraint("Coincident", 0, 2, 1, 2),
    Sketcher.Constraint("Coincident", 1, 1, 2, 1),
    Sketcher.Constraint("Coincident", 2, 2, 3, 2),
    Sketcher.Constraint("Coincident", 3, 1, 4, 1),
    Sketcher.Constraint("Coincident", 4, 2, 5, 2),
    Sketcher.Constraint("Coincident", 5, 1, 6, 1),
    Sketcher.Constraint("Coincident", 6, 2, 7, 2),
    Sketcher.Constraint("Coincident", 7, 1, 8, 1),
    Sketcher.Constraint("Coincident", 8, 2, 9, 2),
    Sketcher.Constraint("Coincident", 9, 1, 10, 1),
    Sketcher.Constraint("Coincident", 10, 2, 11, 2),
    Sketcher.Constraint("Coincident", 11, 1, 0, 1),
    Sketcher.Constraint("Coincident", 0, 3, -1, 1),
    Sketcher.Constraint("Coincident", 2, 3, -1, 1),
    Sketcher.Constraint("Coincident", 4, 3, -1, 1),
    Sketcher.Constraint("Coincident", 6, 3, -1, 1),
    Sketcher.Constraint("Coincident", 8, 3, -1, 1),
    Sketcher.Constraint("Coincident", 10, 3, -1, 1),
    Sketcher.Constraint("Coincident", 12, 3, -1, 1),
    Sketcher.Constraint("Equal", 0, 2),
    Sketcher.Constraint("Equal", 1, 3),
    Sketcher.Constraint("Equal", 2, 4),
    Sketcher.Constraint("Equal", 3, 5),
    Sketcher.Constraint("Equal", 4, 6),
    Sketcher.Constraint("Equal", 5, 7),
    Sketcher.Constraint("Equal", 6, 8),
    Sketcher.Constraint("Equal", 7, 9),
    Sketcher.Constraint("Equal", 8, 10),
    Sketcher.Constraint("Equal", 9, 11),
    Sketcher.Constraint("Symmetric", 1, 3, 7, 3, -1, 1),
    Sketcher.Constraint("Symmetric", 3, 3, 9, 3, -1, 1),
    Sketcher.Constraint("Symmetric", 5, 3, 11, 3, -1, 1),
    Sketcher.Constraint("Symmetric", 5, 3, 7, 3, -2),
    Sketcher.Constraint("PointOnObject", 3, 3, -1),
    Sketcher.Constraint("Diameter", 12, Q("12 mm")),
    Sketcher.Constraint("Radius", 0, Q("11 mm")),
    Sketcher.Constraint("Radius", 1, Q("2.5 mm")),
    Sketcher.Constraint("DistanceX", 3, 3, -1, 1, Q("11 mm")),
    Sketcher.Constraint("DistanceX", 5, 3, 7, 3, Q("11 mm")),
    Sketcher.Constraint("DistanceY", -1, 1, 1, 3, Q("9.526279 mm")),
])
pad7 = body.newObject("PartDesign::Pad", "Pad006")
pad7.Profile = sketch8
pad7.Length = 36

sketch9 = body.newObject("Sketcher::SketchObject", "Sketch008")
sketch9.AttachmentSupport = (doc.getObject("YZ_Plane"), [""])
sketch9.MapMode = "FlatFace"
sketch9.AttachmentOffset = App.Placement(App.Vector(0, 0, -8), App.Rotation())
sketch9.addGeometry([
    Part.Circle(App.Vector(11, 0, 0), App.Vector(0, 0, 1), 2.5),
    Part.Circle(App.Vector(5.5, 9.526279, 0), App.Vector(0, 0, 1), 2.5),
    Part.Circle(App.Vector(-5.5, 9.526279, 0), App.Vector(0, 0, 1), 2.5),
    Part.Circle(App.Vector(-11, 0, 0), App.Vector(0, 0, 1), 2.5),
    Part.Circle(App.Vector(-5.5, -9.526279, 0), App.Vector(0, 0, 1), 2.5),
    Part.Circle(App.Vector(5.5, -9.526279, 0), App.Vector(0, 0, 1), 2.5),
], False)
sketch9.addConstraint([
    Sketcher.Constraint("Equal", 0, 1),
    Sketcher.Constraint("Equal", 1, 2),
    Sketcher.Constraint("Equal", 2, 3),
    Sketcher.Constraint("Equal", 3, 4),
    Sketcher.Constraint("Equal", 4, 5),
    Sketcher.Constraint("Symmetric", 0, 3, 3, 3, -1, 1),
    Sketcher.Constraint("Symmetric", 1, 3, 4, 3, -1, 1),
    Sketcher.Constraint("Symmetric", 2, 3, 5, 3, -1, 1),
    Sketcher.Constraint("Symmetric", 1, 3, 2, 3, -2),
    Sketcher.Constraint("PointOnObject", 0, 3, -1),
    Sketcher.Constraint("Diameter", 0, Q("5 mm")),
    Sketcher.Constraint("DistanceX", -1, 1, 0, 3, Q("11 mm")),
    Sketcher.Constraint("DistanceX", 2, 3, 1, 3, Q("11 mm")),
    Sketcher.Constraint("DistanceY", -1, 1, 1, 3, Q("9.526279 mm")),
])
pocket2 = body.newObject("PartDesign::Pocket", "Pocket001")
pocket2.Profile = sketch9
pocket2.Length = 36
pocket2.Reversed = True

sketch10 = body.newObject("Sketcher::SketchObject", "Sketch009")
sketch10.AttachmentSupport = (doc.getObject("YZ_Plane"), [""])
sketch10.MapMode = "FlatFace"
sketch10.AttachmentOffset = App.Placement(App.Vector(0, 0, -8), App.Rotation())
sketch10.addGeometry(Part.Circle(App.Vector(0, 0, 0), App.Vector(0, 0, 1), 28.712888), False)
sketch10.addConstraint([
    Sketcher.Constraint("Coincident", 0, 3, -1, 1),
    Sketcher.Constraint("Diameter", 0, Q("57.425775 mm")),
])
pocket3 = body.newObject("PartDesign::Pocket", "Pocket002")
pocket3.Profile = sketch10
pocket3.Length = 6.7
pocket3.Reversed = True

sketch11 = body.newObject("Sketcher::SketchObject", "Sketch010")
sketch11.AttachmentSupport = (doc.getObject("YZ_Plane"), [""])
sketch11.MapMode = "FlatFace"
sketch11.AttachmentOffset = App.Placement(App.Vector(0, 0, -1.3), App.Rotation())
sketch11.addGeometry([
    Part.Circle(App.Vector(-9.526279, -5.5, 0), App.Vector(0, 0, 1), 2),
    Part.Circle(App.Vector(9.526279, -5.5, 0), App.Vector(0, 0, 1), 1.5),
    Part.Circle(App.Vector(9.526279, 5.5, 0), App.Vector(0, 0, 1), 2),
    Part.Circle(App.Vector(-9.526279, 5.5, 0), App.Vector(0, 0, 1), 1.5),
], False)
sketch11.addConstraint([
    Sketcher.Constraint("Equal", 0, 2),
    Sketcher.Constraint("Equal", 1, 3),
    Sketcher.Constraint("Symmetric", 0, 3, 2, 3, -1, 1),
    Sketcher.Constraint("Symmetric", 1, 3, 3, 3, -1, 1),
    Sketcher.Constraint("Symmetric", 0, 3, 1, 3, -2),
    Sketcher.Constraint("Diameter", 0, Q("4 mm")),
    Sketcher.Constraint("Diameter", 1, Q("3 mm")),
    Sketcher.Constraint("DistanceY", 1, 3, 2, 3, Q("11 mm")),
    Sketcher.Constraint("DistanceX", 0, 3, -1, 1, Q("9.526279 mm")),
])
pad8 = body.newObject("PartDesign::Pad", "Pad007")
pad8.Profile = sketch11
pad8.Length = 3.8
pad8.Reversed = True
doc.recompute()

chamfer = body.newObject("PartDesign::Chamfer", "Chamfer")
chamfer.Base = (pad8, edges_at(pad8, [
    (-5.1, -9.526, -3.5),
    (-5.1, 9.526, -4),
    (-5.1, 9.526, 7.5),
    (-5.1, -9.526, 7),
]))
chamfer.Size = 0.5

sketch12 = body.newObject("Sketcher::SketchObject", "Sketch011")
sketch12.AttachmentSupport = (doc.getObject("YZ_Plane"), [""])
sketch12.MapMode = "FlatFace"
sketch12.AttachmentOffset = App.Placement(App.Vector(0, 0, 3), App.Rotation())
sketch12.addGeometry([
    Part.LineSegment(App.Vector(21.697313, 8.823674, 0), App.Vector(31.038187, 6.840948, 0)),
    Part.ArcOfCircle(Part.Circle(App.Vector(30, 1.949919, 0), App.Vector(0, 0, 1), 5), math.radians(0), math.radians(78.016068)),
    Part.LineSegment(App.Vector(35, 1.949919, 0), App.Vector(35, -1.949919, 0)),
    Part.ArcOfCircle(Part.Circle(App.Vector(30, -1.949919, 0), App.Vector(0, 0, 1), 5), math.radians(-78.016068), math.radians(0)),
    Part.LineSegment(App.Vector(31.038187, -6.840948, 0), App.Vector(21.697313, -8.823674, 0)),
    Part.ArcOfCircle(Part.Circle(App.Vector(25.019511, -24.474968, 0), App.Vector(0, 0, 1), 16), math.radians(101.983932), math.radians(135.630348)),
    Part.ArcOfCircle(Part.Circle(App.Vector(0, 0, 0), App.Vector(0, 0, 1), 19), math.radians(-44.369652), math.radians(44.369652)),
    Part.ArcOfCircle(Part.Circle(App.Vector(25.019511, 24.474968, 0), App.Vector(0, 0, 1), 16), math.radians(-135.630348), math.radians(-101.983932)),
], False)
sketch12.addConstraint([
    Sketcher.Constraint("Tangent", 0, 2, 1, 2),
    Sketcher.Constraint("Tangent", 1, 1, 2, 1),
    Sketcher.Constraint("Tangent", 2, 2, 3, 2),
    Sketcher.Constraint("Tangent", 3, 1, 4, 1),
    Sketcher.Constraint("Tangent", 4, 2, 5, 1),
    Sketcher.Constraint("Tangent", 5, 2, 6, 1),
    Sketcher.Constraint("Tangent", 6, 2, 7, 1),
    Sketcher.Constraint("Tangent", 7, 2, 0, 1),
    Sketcher.Constraint("Vertical", 2),
    Sketcher.Constraint("Coincident", 6, 3, -1, 1),
    Sketcher.Constraint("Equal", 1, 3),
    Sketcher.Constraint("Equal", 5, 7),
    Sketcher.Constraint("Symmetric", 0, 2, 3, 1, -1),
    Sketcher.Constraint("Radius", 1, Q("5 mm")),
    Sketcher.Constraint("Radius", 5, Q("16 mm")),
    Sketcher.Constraint("Radius", 6, Q("19 mm")),
    Sketcher.Constraint("DistanceX", -1, 1, 1, 3, Q("30 mm")),
    Sketcher.Constraint("DistanceY", 2, 2, 2, 1, Q("3.899838 mm")),
    Sketcher.Constraint("DistanceX", -1, 1, 5, 3, Q("25.019511 mm")),
])
pocket4 = body.newObject("PartDesign::Pocket", "Pocket003")
pocket4.Profile = sketch12
pocket4.Length = 3

doc.recompute()
